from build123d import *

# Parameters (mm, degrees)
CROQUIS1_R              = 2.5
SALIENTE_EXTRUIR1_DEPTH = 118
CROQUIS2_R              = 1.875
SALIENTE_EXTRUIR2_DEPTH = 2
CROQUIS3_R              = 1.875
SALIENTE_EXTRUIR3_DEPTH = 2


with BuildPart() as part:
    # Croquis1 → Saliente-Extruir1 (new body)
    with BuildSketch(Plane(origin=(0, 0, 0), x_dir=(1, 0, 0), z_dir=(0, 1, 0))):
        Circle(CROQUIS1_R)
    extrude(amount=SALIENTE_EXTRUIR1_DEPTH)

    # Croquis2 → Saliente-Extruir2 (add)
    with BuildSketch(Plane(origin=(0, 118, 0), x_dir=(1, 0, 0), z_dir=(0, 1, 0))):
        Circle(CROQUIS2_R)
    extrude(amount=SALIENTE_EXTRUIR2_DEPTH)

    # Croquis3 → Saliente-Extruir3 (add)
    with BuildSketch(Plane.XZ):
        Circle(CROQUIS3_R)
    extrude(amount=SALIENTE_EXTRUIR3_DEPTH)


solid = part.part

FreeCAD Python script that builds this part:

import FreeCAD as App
import Part
import Sketcher

V = App.Vector
Q = App.Units.Quantity

doc = App.newDocument("Part")
params = doc.addObject("Spreadsheet::Sheet", "Params")
for row, (alias, value) in enumerate([
    ("sketch1_diameter", "5 mm"),
    ("pad1_length", "118 mm"),
    ("sketch2_diameter", "3.75 mm"),
    ("pad2_length", "2 mm"),
    ("sketch3_diameter", "3.75 mm"),
    ("pad3_length", "2 mm"),
], start=1):
    params.set(f"A{row}", alias)
    params.set(f"B{row}", "=" + value)
    params.setAlias(f"B{row}", alias)

body = doc.addObject("PartDesign::Body", "Body")

sketch1 = doc.addObject("Sketcher::SketchObject", "Sketch")
body.addObject(sketch1)
sketch1.AttachmentSupport = (doc.XZ_Plane, [""])
sketch1.MapMode = "FlatFace"
sketch1.addGeometry(Part.Circle(V(0, 0, 0), V(0, 0, 1), 2.5), False)
sketch1.addConstraint(Sketcher.Constraint("Coincident", 0, 3, -1, 1))
sketch1.addConstraint(Sketcher.Constraint("Diameter", 0, Q("5 mm")))
sketch1.setExpression("Constraints[1]", "Params.sketch1_diameter")
pad1 = doc.addObject("PartDesign::Pad", "Pad")
body.addObject(pad1)
pad1.Profile = sketch1
pad1.setExpression("Length", "Params.pad1_length")
pad1.Reversed = True

sketch2 = doc.addObject("Sketcher::SketchObject", "Sketch001")
body.addObject(sketch2)
sketch2.AttachmentSupport = (doc.XZ_Plane, [""])
sketch2.MapMode = "FlatFace"
sketch2.AttachmentOffset = App.Placement(V(0, 0, -118), App.Rotation())
sketch2.addGeometry(Part.Circle(V(0, 0, 0), V(0, 0, 1), 1.9), False)
sketch2.addConstraint(Sketcher.Constraint("Coincident", 0, 3, -1, 1))
sketch2.addConstraint(Sketcher.Constraint("Diameter", 0, Q("3.75 mm")))
sketch2.setExpression("Constraints[1]", "Params.sketch2_diameter")
pad2 = doc.addObject("PartDesign::Pad", "Pad001")
body.addObject(pad2)
pad2.Profile = sketch2
pad2.setExpression("Length", "Params.pad2_length")
pad2.Reversed = True

sketch3 = doc.addObject("Sketcher::SketchObject", "Sketch002")
body.addObject(sketch3)
sketch3.AttachmentSupport = (doc.XZ_Plane, [""])
sketch3.MapMode = "FlatFace"
sketch3.addGeometry(Part.Circle(V(0, 0, 0), V(0, 0, 1), 1.9), False)
sketch3.addConstraint(Sketcher.Constraint("Coincident", 0, 3, -1, 1))
sketch3.addConstraint(Sketcher.Constraint("Diameter", 0, Q("3.75 mm")))
sketch3.setExpression("Constraints[1]", "Params.sketch3_diameter")
pad3 = doc.addObject("PartDesign::Pad", "Pad002")
body.addObject(pad3)
pad3.Profile = sketch3
pad3.setExpression("Length", "Params.pad3_length")

doc.recompute()
